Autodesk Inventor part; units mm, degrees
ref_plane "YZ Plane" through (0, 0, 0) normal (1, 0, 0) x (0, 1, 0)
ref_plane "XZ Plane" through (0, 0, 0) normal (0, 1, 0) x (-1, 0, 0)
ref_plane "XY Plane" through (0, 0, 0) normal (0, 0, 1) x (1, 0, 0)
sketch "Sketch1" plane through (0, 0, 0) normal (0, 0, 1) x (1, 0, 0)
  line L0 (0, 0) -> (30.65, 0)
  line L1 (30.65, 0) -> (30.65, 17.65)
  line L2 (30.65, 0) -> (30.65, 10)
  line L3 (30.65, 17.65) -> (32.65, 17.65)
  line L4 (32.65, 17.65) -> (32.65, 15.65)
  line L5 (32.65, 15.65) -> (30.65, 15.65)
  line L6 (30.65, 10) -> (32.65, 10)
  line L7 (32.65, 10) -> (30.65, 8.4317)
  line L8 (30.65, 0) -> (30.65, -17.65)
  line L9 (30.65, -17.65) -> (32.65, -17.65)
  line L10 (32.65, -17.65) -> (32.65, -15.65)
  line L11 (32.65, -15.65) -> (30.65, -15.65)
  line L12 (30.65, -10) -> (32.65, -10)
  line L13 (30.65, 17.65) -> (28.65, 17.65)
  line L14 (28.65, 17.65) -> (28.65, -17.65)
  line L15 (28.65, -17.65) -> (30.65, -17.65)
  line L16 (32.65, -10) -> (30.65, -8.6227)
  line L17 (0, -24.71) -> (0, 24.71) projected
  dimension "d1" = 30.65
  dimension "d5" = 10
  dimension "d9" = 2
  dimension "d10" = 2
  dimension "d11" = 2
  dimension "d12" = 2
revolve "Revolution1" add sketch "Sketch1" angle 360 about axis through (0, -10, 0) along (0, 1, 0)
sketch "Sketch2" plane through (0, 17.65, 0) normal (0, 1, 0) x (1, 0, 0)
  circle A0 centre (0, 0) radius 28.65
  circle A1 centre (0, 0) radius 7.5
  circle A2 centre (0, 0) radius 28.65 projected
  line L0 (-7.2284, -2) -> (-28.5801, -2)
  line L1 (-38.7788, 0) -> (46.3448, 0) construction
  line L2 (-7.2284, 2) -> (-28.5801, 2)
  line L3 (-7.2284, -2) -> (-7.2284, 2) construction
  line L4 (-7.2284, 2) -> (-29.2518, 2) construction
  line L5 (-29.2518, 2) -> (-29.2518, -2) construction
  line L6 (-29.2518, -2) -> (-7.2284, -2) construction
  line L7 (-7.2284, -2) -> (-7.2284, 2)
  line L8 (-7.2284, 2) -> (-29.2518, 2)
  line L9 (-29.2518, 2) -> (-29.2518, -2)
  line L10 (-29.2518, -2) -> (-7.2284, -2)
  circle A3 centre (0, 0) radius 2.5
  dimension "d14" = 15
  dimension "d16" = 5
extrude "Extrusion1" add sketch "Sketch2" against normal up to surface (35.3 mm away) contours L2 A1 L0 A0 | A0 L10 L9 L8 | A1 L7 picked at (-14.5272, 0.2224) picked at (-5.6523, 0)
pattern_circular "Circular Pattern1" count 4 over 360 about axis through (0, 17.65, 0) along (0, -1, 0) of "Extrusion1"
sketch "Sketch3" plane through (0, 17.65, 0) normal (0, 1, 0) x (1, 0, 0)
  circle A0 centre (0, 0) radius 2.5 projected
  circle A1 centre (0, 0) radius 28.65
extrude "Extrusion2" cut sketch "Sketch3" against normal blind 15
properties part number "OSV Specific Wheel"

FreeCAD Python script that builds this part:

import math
import FreeCAD as App
import Part
import Sketcher
from FreeCAD import Vector


def add_polygon(sketch, points):
    """Adds a closed chain of lines whose ends are joined by coincident constraints."""
    first, n = sketch.GeometryCount, len(points)
    for a, b in zip(points, points[1:] + points[:1]):
        sketch.addGeometry(Part.LineSegment(App.Vector(*a, 0), App.Vector(*b, 0)), False)
    for i in range(n):
        sketch.addConstraint(Sketcher.Constraint("Coincident", first + i, 2, first + (i + 1) % n, 1))

doc = App.newDocument("Part")
body = doc.addObject("PartDesign::Body", "Body")
body.AllowCompound = True

sketch1 = doc.addObject("Sketcher::SketchObject", "Sketch")
body.addObject(sketch1)
sketch1.AttachmentSupport = (doc.XY_Plane, [""])
sketch1.MapMode = "FlatFace"
add_polygon(sketch1, [(28.65, 17.65), (28.65, -17.65), (32.65, -17.65), (32.65, -15.65), (30.65, -15.65), (30.65, -10), (32.65, -10), (30.65, -8.6227), (30.65, 8.4317), (32.65, 10), (30.65, 10), (30.65, 15.65), (32.65, 15.65), (32.65, 17.65)])
sketch1.addConstraint(Sketcher.Constraint("Vertical", 0))
sketch1.addConstraint(Sketcher.Constraint("Horizontal", 1))
sketch1.addConstraint(Sketcher.Constraint("Vertical", 2))
sketch1.addConstraint(Sketcher.Constraint("Horizontal", 3))
sketch1.addConstraint(Sketcher.Constraint("Vertical", 4))
sketch1.addConstraint(Sketcher.Constraint("Horizontal", 5))
sketch1.addConstraint(Sketcher.Constraint("Vertical", 7))
sketch1.addConstraint(Sketcher.Constraint("Horizontal", 9))
sketch1.addConstraint(Sketcher.Constraint("Vertical", 10))
sketch1.addConstraint(Sketcher.Constraint("Horizontal", 11))
sketch1.addConstraint(Sketcher.Constraint("Vertical", 12))
sketch1.addConstraint(Sketcher.Constraint("Horizontal", 13))
sketch1.addConstraint(Sketcher.Constraint("Symmetric", 5, 2, 8, 2, -1))
sketch1.addConstraint(Sketcher.Constraint("Symmetric", 3, 2, 10, 2, -1))
sketch1.addConstraint(Sketcher.Constraint("Symmetric", 1, 2, 12, 2, -1))
sketch1.addConstraint(Sketcher.Constraint("Vertical", 2, 2, 5, 2))
sketch1.addConstraint(Sketcher.Constraint("Vertical", 4, 2, 6, 2))
sketch1.addConstraint(Sketcher.Constraint("Equal", 11, 2))
sketch1.addConstraint(Sketcher.Constraint("DistanceX", 3, 2, 3, 1, 2.0))
sketch1.addConstraint(Sketcher.Constraint("DistanceY", 4, 2, -1, 1, 10.0))
sketch1.addConstraint(Sketcher.Constraint("DistanceX", 0, 2, 3, 2, 2.0))
sketch1.addConstraint(Sketcher.Constraint("DistanceX", -1, 1, 3, 2, 30.65))
sketch1.addConstraint(Sketcher.Constraint("DistanceY", 0, 2, 0, 1, 35.3))
sketch1.addConstraint(Sketcher.Constraint("DistanceY", 7, 1, 7, 2, 17.0544))
sketch1.addConstraint(Sketcher.Constraint("Distance", 6, 2.4284))
revolution = doc.addObject("PartDesign::Revolution", "Revolution")
body.addObject(revolution)
revolution.Profile = sketch1
revolution.ReferenceAxis = (sketch1, ["V_Axis"])
revolution.Angle = 360

sketch2 = doc.addObject("Sketcher::SketchObject", "Sketch001")
body.addObject(sketch2)
sketch2.AttachmentSupport = (doc.XZ_Plane, [""])
sketch2.MapMode = "FlatFace"
sketch2.AttachmentOffset = App.Placement(Vector(0, 0, -17.65), App.Rotation())
sketch2.addGeometry(Part.LineSegment(Vector(-7.2284, -2, 0), Vector(-29.2518, -2, 0)), False)
sketch2.addGeometry(Part.LineSegment(Vector(-29.2518, -2, 0), Vector(-29.2518, 2, 0)), False)
sketch2.addGeometry(Part.LineSegment(Vector(-29.2518, 2, 0), Vector(-7.2284, 2, 0)), False)
sketch2.addGeometry(Part.ArcOfCircle(Part.Circle(Vector(0, 0, 0), Vector(0, 0, 1), 7.5), math.radians(164.533957), math.radians(195.466043)), False)
sketch2.addGeometry(Part.ArcOfCircle(Part.Circle(Vector(0, 0, 0), Vector(0, 0, 1), 7.5), math.radians(-164.533957), math.radians(164.533957)), False)
sketch2.addGeometry(Part.LineSegment(Vector(-7.2284, 2, 0), Vector(-7.2284, -2, 0)), False)
sketch2.addGeometry(Part.Circle(Vector(0, 0, 0), Vector(0, 0, 1), 2.5), False)
sketch2.addConstraint(Sketcher.Constraint("Coincident", 0, 2, 1, 1))
sketch2.addConstraint(Sketcher.Constraint("Coincident", 1, 2, 2, 1))
sketch2.addConstraint(Sketcher.Constraint("Coincident", 2, 2, 3, 1))
sketch2.addConstraint(Sketcher.Constraint("Coincident", 3, 2, 0, 1))
sketch2.addConstraint(Sketcher.Constraint("Coincident", 4, 1, 5, 2))
sketch2.addConstraint(Sketcher.Constraint("Coincident", 5, 1, 4, 2))
sketch2.addConstraint(Sketcher.Constraint("Horizontal", 0))
sketch2.addConstraint(Sketcher.Constraint("Vertical", 1))
sketch2.addConstraint(Sketcher.Constraint("Horizontal", 2))
sketch2.addConstraint(Sketcher.Constraint("Vertical", 5))
sketch2.addConstraint(Sketcher.Constraint("Coincident", 3, 3, -1, 1))
sketch2.addConstraint(Sketcher.Constraint("Coincident", 4, 3, -1, 1))
sketch2.addConstraint(Sketcher.Constraint("Coincident", 6, 3, -1, 1))
sketch2.addConstraint(Sketcher.Constraint("Coincident", 4, 1, 3, 2))
sketch2.addConstraint(Sketcher.Constraint("Horizontal", 1, 2, 5, 1))
sketch2.addConstraint(Sketcher.Constraint("Diameter", 6, 5.0))
sketch2.addConstraint(Sketcher.Constraint("Radius", 3, 7.5))
sketch2.addConstraint(Sketcher.Constraint("DistanceY", 1, 1, 1, 2, 4.0))
sketch2.addConstraint(Sketcher.Constraint("DistanceX", 0, 2, 0, 1, 22.0234))
pad1 = doc.addObject("PartDesign::Pad", "Pad")
body.addObject(pad1)
pad1.Profile = sketch2
pad1.Length = 35.3
doc.recompute()

polarpattern = doc.addObject("PartDesign::PolarPattern", "PolarPattern")
body.addObject(polarpattern)
polarpattern.Originals = [pad1]
polarpattern.Axis = (doc.Y_Axis, [""])
polarpattern.Angle = 360
polarpattern.Occurrences = 4
body.Tip = polarpattern

sketch3 = doc.addObject("Sketcher::SketchObject", "Sketch002")
body.addObject(sketch3)
sketch3.AttachmentSupport = (doc.XZ_Plane, [""])
sketch3.MapMode = "FlatFace"
sketch3.AttachmentOffset = App.Placement(Vector(0, 0, -17.65), App.Rotation())
sketch3.addGeometry(Part.Circle(Vector(0, 0, 0), Vector(0, 0, 1), 28.65), False)
sketch3.addGeometry(Part.Circle(Vector(0, 0, 0), Vector(0, 0, 1), 2.5), False)
sketch3.addConstraint(Sketcher.Constraint("Coincident", 0, 3, -1, 1))
sketch3.addConstraint(Sketcher.Constraint("Coincident", 1, 3, -1, 1))
sketch3.addConstraint(Sketcher.Constraint("Diameter", 1, 5.0))
sketch3.addConstraint(Sketcher.Constraint("Diameter", 0, 57.3))
pocket1 = doc.addObject("PartDesign::Pocket", "Pocket")
body.addObject(pocket1)
pocket1.Profile = sketch3
pocket1.Length = 15
pocket1.Reversed = True

doc.recompute()
